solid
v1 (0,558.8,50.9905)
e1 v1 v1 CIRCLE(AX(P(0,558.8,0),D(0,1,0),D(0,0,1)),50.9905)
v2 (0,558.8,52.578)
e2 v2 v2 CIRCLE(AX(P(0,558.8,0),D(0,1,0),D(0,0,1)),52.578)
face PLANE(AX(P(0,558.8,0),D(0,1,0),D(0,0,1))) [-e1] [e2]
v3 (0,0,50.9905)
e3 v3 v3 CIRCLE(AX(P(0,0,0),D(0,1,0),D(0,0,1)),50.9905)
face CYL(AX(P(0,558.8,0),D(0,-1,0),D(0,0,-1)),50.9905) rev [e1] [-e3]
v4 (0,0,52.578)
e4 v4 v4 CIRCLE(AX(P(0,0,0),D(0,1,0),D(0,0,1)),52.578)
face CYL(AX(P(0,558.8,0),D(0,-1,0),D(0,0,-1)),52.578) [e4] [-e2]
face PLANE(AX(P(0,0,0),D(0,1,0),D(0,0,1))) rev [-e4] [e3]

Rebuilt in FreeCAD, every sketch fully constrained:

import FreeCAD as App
import Part
import Sketcher
Q = App.Units.Quantity

doc = App.newDocument("Part")
params = doc.addObject("Spreadsheet::Sheet", "Params")
for row, (alias, value) in enumerate([
    ("sketch1_diameter", "4.14 in"),
    ("sketch1_diameter2", "4.015 in"),
    ("pad1_length", "22 in"),
], start=1):
    params.set(f"A{row}", alias)
    params.set(f"B{row}", "=" + value)
    params.setAlias(f"B{row}", alias)

body = doc.addObject("PartDesign::Body", "Body")

sketch1 = body.newObject("Sketcher::SketchObject", "Sketch")
sketch1.AttachmentSupport = (doc.getObject("XZ_Plane"), [""])
sketch1.MapMode = "FlatFace"
sketch1.addGeometry([
    Part.Circle(App.Vector(0, 0, 0), App.Vector(0, 0, 1), 52.578),
    Part.Circle(App.Vector(0, 0, 0), App.Vector(0, 0, 1), 50.9905),
], False)
sketch1.addConstraint([
    Sketcher.Constraint("Coincident", 0, 3, -1, 1),
    Sketcher.Constraint("Coincident", 1, 3, -1, 1),
    Sketcher.Constraint("Diameter", 0, Q("4.14 in")),
    Sketcher.Constraint("Diameter", 1, Q("4.015 in")),
])
sketch1.setExpression("Constraints[2]", "Params.sketch1_diameter")
sketch1.setExpression("Constraints[3]", "Params.sketch1_diameter2")
pad1 = body.newObject("PartDesign::Pad", "Pad")
pad1.Profile = sketch1
pad1.setExpression("Length", "Params.pad1_length")
pad1.Reversed = True

doc.recompute()
